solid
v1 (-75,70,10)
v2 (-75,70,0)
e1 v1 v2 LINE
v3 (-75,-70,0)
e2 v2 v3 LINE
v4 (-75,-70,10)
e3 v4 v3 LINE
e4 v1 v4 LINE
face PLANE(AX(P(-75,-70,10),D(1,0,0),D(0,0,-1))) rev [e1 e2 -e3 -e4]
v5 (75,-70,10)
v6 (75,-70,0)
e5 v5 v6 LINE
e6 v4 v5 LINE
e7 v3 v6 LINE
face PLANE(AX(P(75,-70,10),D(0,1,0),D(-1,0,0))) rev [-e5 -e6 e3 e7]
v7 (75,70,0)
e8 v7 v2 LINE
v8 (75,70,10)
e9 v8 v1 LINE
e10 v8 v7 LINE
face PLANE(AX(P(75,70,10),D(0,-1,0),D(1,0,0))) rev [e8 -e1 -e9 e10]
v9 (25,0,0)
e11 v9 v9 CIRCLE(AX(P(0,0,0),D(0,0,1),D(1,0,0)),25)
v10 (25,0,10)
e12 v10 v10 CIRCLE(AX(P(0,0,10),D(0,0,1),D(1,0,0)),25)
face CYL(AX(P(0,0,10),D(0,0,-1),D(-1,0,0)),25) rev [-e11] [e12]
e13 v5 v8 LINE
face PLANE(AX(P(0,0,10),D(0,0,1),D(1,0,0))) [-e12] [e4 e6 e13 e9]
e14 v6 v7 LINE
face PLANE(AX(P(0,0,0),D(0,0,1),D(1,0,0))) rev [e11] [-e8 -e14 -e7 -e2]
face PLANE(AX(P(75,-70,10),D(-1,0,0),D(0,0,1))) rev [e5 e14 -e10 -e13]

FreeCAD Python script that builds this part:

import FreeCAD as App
import Part
import Sketcher
from FreeCAD import Vector

doc = App.newDocument("Part")
params = doc.addObject("Spreadsheet::Sheet", "Params")
for row, (alias, value) in enumerate([
    ("sketch1_diameter", "50 mm"),
    ("sketch1_width", "150 mm"),
    ("sketch1_height", "140 mm"),
    ("pad1_length", "10 mm"),
], start=1):
    params.set(f"A{row}", alias)
    params.set(f"B{row}", "=" + value)
    params.setAlias(f"B{row}", alias)

body = doc.addObject("PartDesign::Body", "Body")

# Sketch on XY plane
sketch1 = body.newObject("Sketcher::SketchObject", "Sketch")
sketch1.AttachmentSupport = (doc.getObject("XY_Plane"), [""])
sketch1.MapMode = "FlatFace"
sketch1.addGeometry(Part.LineSegment(Vector(-75, 70, 0), Vector(-75, -70, 0)), False)
sketch1.addGeometry(Part.LineSegment(Vector(-75, -70, 0), Vector(75, -70, 0)), False)
sketch1.addGeometry(Part.LineSegment(Vector(75, -70, 0), Vector(75, 70, 0)), False)
sketch1.addGeometry(Part.LineSegment(Vector(75, 70, 0), Vector(-75, 70, 0)), False)
sketch1.addGeometry(Part.Circle(Vector(0, 0, 0), Vector(0, 0, 1), 25), False)
sketch1.addConstraint(Sketcher.Constraint("Coincident", 0, 2, 1, 1))
sketch1.addConstraint(Sketcher.Constraint("Coincident", 1, 2, 2, 1))
sketch1.addConstraint(Sketcher.Constraint("Coincident", 2, 2, 3, 1))
sketch1.addConstraint(Sketcher.Constraint("Coincident", 3, 2, 0, 1))
sketch1.addConstraint(Sketcher.Constraint("Vertical", 0))
sketch1.addConstraint(Sketcher.Constraint("Horizontal", 1))
sketch1.addConstraint(Sketcher.Constraint("Vertical", 2))
sketch1.addConstraint(Sketcher.Constraint("Horizontal", 3))
sketch1.addConstraint(Sketcher.Constraint("Coincident", 4, 3, -1, 1))
sketch1.addConstraint(Sketcher.Constraint("Symmetric", 0, 2, 2, 2, -1, 1))
sketch1.addConstraint(Sketcher.Constraint("Diameter", 4, 50.0))
sketch1.addConstraint(Sketcher.Constraint("DistanceX", 1, 1, 1, 2, 150.0))
sketch1.addConstraint(Sketcher.Constraint("DistanceY", 0, 2, 0, 1, 140.0))
sketch1.setExpression("Constraints[10]", "Params.sketch1_diameter")
sketch1.setExpression("Constraints[11]", "Params.sketch1_width")
sketch1.setExpression("Constraints[12]", "Params.sketch1_height")
pad1 = body.newObject("PartDesign::Pad", "Pad")
pad1.Profile = sketch1
pad1.setExpression("Length", "Params.pad1_length")

doc.recompute()
